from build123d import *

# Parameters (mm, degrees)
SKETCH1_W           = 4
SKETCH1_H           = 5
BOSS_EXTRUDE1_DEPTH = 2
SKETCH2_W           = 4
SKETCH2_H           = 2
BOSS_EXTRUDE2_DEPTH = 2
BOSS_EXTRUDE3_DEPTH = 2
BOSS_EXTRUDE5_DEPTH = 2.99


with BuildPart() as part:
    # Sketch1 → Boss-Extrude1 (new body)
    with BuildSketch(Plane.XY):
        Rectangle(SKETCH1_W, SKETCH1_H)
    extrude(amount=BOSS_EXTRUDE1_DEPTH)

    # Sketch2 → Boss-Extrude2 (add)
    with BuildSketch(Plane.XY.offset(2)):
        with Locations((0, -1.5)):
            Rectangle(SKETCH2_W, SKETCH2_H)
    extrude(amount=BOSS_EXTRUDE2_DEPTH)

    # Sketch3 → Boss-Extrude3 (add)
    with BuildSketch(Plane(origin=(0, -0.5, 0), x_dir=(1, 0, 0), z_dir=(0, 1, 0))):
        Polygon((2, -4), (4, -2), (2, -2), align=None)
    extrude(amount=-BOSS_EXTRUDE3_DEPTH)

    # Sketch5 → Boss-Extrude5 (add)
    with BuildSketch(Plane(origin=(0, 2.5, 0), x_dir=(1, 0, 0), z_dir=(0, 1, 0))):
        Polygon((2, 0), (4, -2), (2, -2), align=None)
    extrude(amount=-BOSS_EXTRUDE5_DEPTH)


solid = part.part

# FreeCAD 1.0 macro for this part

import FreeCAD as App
import Part
import Sketcher
from FreeCAD import Vector
Q = App.Units.Quantity


def add_polygon(sketch, points):
    """Adds a closed chain of lines whose ends are joined by coincident constraints."""
    first, n = sketch.GeometryCount, len(points)
    for a, b in zip(points, points[1:] + points[:1]):
        sketch.addGeometry(Part.LineSegment(App.Vector(*a, 0), App.Vector(*b, 0)), False)
    for i in range(n):
        sketch.addConstraint(Sketcher.Constraint("Coincident", first + i, 2, first + (i + 1) % n, 1))

doc = App.newDocument("Part")
params = doc.addObject("Spreadsheet::Sheet", "Params")
for row, (alias, value) in enumerate([
    ("sketch1_width", "4 mm"),
    ("sketch1_height", "5 mm"),
    ("pad1_length", "2 mm"),
    ("sketch2_width", "4 mm"),
    ("sketch2_height", "2 mm"),
    ("pad2_length", "2 mm"),
    ("sketch3_width", "2 mm"),
    ("pad3_length", "2 mm"),
    ("sketch4_width", "2 mm"),
    ("pad4_length", "2.99 mm"),
], start=1):
    params.set(f"A{row}", alias)
    params.set(f"B{row}", "=" + value)
    params.setAlias(f"B{row}", alias)

body = doc.addObject("PartDesign::Body", "Body")

# Sketch on XY plane
sketch1 = doc.addObject("Sketcher::SketchObject", "Sketch")
body.addObject(sketch1)
sketch1.AttachmentSupport = (doc.XY_Plane, [""])
sketch1.MapMode = "FlatFace"
add_polygon(sketch1, [(-2, 2.5), (-2, -2.5), (2, -2.5), (2, 2.5)])  # lines 0-3
sketch1.addConstraint([
    Sketcher.Constraint("Vertical", 0),
    Sketcher.Constraint("Horizontal", 1),
    Sketcher.Constraint("Vertical", 2),
    Sketcher.Constraint("Horizontal", 3),
    Sketcher.Constraint("Symmetric", 0, 2, 2, 2, -1, 1),
    Sketcher.Constraint("DistanceX", 1, 1, 1, 2, Q("4 mm")),
    Sketcher.Constraint("DistanceY", 0, 2, 0, 1, Q("5 mm")),
])
sketch1.setExpression("Constraints[9]", "Params.sketch1_width")
sketch1.setExpression("Constraints[10]", "Params.sketch1_height")
pad1 = doc.addObject("PartDesign::Pad", "Pad")
body.addObject(pad1)
pad1.Profile = sketch1
pad1.setExpression("Length", "Params.pad1_length")

# Sketch on XY plane
sketch2 = doc.addObject("Sketcher::SketchObject", "Sketch001")
body.addObject(sketch2)
sketch2.AttachmentSupport = (doc.XY_Plane, [""])
sketch2.MapMode = "FlatFace"
sketch2.AttachmentOffset = App.Placement(Vector(0, 0, 2), App.Rotation())
add_polygon(sketch2, [(-2, -0.5), (-2, -2.5), (2, -2.5), (2, -0.5)])  # lines 0-3
sketch2.addConstraint([
    Sketcher.Constraint("Vertical", 0),
    Sketcher.Constraint("Horizontal", 1),
    Sketcher.Constraint("Vertical", 2),
    Sketcher.Constraint("Horizontal", 3),
    Sketcher.Constraint("DistanceX", 1, 1, 1, 2, Q("4 mm")),
    Sketcher.Constraint("DistanceY", 0, 2, 0, 1, Q("2 mm")),
    Sketcher.Constraint("DistanceX", 0, 2, -1, 1, Q("2 mm")),
    Sketcher.Constraint("DistanceY", 0, 2, -1, 1, Q("2.5 mm")),
])
sketch2.setExpression("Constraints[8]", "Params.sketch2_width")
sketch2.setExpression("Constraints[9]", "Params.sketch2_height")
pad2 = doc.addObject("PartDesign::Pad", "Pad001")
body.addObject(pad2)
pad2.Profile = sketch2
pad2.setExpression("Length", "Params.pad2_length")

# Sketch on XZ plane
sketch3 = doc.addObject("Sketcher::SketchObject", "Sketch002")
body.addObject(sketch3)
sketch3.AttachmentSupport = (doc.XZ_Plane, [""])
sketch3.MapMode = "FlatFace"
sketch3.AttachmentOffset = App.Placement(Vector(0, 0, 0.5), App.Rotation())
add_polygon(sketch3, [(2, 4), (4, 2), (2, 2)])  # lines 0-2
sketch3.addConstraint([
    Sketcher.Constraint("Horizontal", 1),
    Sketcher.Constraint("Vertical", 2),
    Sketcher.Constraint("Equal", 1, 2),
    Sketcher.Constraint("DistanceX", 1, 2, 1, 1, Q("2 mm")),
    Sketcher.Constraint("DistanceX", -1, 1, 0, 2, Q("4 mm")),
    Sketcher.Constraint("DistanceY", -1, 1, 0, 2, Q("2 mm")),
])
sketch3.setExpression("Constraints[6]", "Params.sketch3_width")
pad3 = doc.addObject("PartDesign::Pad", "Pad002")
body.addObject(pad3)
pad3.Profile = sketch3
pad3.setExpression("Length", "Params.pad3_length")

# Sketch on XZ plane
sketch4 = doc.addObject("Sketcher::SketchObject", "Sketch003")
body.addObject(sketch4)
sketch4.AttachmentSupport = (doc.XZ_Plane, [""])
sketch4.MapMode = "FlatFace"
sketch4.AttachmentOffset = App.Placement(Vector(0, 0, -2.5), App.Rotation())
add_polygon(sketch4, [(4, 2), (2, 0), (2, 2)])  # lines 0-2
sketch4.addConstraint([
    Sketcher.Constraint("Vertical", 1),
    Sketcher.Constraint("Horizontal", 2),
    Sketcher.Constraint("PointOnObject", 0, 2, -1),
    Sketcher.Constraint("Equal", 2, 1),
    Sketcher.Constraint("DistanceX", 2, 1, 2, 2, Q("2 mm")),
    Sketcher.Constraint("DistanceX", -1, 1, 0, 2, Q("2 mm")),
])
sketch4.setExpression("Constraints[7]", "Params.sketch4_width")
pad4 = doc.addObject("PartDesign::Pad", "Pad003")
body.addObject(pad4)
pad4.Profile = sketch4
pad4.setExpression("Length", "Params.pad4_length")

doc.recompute()
